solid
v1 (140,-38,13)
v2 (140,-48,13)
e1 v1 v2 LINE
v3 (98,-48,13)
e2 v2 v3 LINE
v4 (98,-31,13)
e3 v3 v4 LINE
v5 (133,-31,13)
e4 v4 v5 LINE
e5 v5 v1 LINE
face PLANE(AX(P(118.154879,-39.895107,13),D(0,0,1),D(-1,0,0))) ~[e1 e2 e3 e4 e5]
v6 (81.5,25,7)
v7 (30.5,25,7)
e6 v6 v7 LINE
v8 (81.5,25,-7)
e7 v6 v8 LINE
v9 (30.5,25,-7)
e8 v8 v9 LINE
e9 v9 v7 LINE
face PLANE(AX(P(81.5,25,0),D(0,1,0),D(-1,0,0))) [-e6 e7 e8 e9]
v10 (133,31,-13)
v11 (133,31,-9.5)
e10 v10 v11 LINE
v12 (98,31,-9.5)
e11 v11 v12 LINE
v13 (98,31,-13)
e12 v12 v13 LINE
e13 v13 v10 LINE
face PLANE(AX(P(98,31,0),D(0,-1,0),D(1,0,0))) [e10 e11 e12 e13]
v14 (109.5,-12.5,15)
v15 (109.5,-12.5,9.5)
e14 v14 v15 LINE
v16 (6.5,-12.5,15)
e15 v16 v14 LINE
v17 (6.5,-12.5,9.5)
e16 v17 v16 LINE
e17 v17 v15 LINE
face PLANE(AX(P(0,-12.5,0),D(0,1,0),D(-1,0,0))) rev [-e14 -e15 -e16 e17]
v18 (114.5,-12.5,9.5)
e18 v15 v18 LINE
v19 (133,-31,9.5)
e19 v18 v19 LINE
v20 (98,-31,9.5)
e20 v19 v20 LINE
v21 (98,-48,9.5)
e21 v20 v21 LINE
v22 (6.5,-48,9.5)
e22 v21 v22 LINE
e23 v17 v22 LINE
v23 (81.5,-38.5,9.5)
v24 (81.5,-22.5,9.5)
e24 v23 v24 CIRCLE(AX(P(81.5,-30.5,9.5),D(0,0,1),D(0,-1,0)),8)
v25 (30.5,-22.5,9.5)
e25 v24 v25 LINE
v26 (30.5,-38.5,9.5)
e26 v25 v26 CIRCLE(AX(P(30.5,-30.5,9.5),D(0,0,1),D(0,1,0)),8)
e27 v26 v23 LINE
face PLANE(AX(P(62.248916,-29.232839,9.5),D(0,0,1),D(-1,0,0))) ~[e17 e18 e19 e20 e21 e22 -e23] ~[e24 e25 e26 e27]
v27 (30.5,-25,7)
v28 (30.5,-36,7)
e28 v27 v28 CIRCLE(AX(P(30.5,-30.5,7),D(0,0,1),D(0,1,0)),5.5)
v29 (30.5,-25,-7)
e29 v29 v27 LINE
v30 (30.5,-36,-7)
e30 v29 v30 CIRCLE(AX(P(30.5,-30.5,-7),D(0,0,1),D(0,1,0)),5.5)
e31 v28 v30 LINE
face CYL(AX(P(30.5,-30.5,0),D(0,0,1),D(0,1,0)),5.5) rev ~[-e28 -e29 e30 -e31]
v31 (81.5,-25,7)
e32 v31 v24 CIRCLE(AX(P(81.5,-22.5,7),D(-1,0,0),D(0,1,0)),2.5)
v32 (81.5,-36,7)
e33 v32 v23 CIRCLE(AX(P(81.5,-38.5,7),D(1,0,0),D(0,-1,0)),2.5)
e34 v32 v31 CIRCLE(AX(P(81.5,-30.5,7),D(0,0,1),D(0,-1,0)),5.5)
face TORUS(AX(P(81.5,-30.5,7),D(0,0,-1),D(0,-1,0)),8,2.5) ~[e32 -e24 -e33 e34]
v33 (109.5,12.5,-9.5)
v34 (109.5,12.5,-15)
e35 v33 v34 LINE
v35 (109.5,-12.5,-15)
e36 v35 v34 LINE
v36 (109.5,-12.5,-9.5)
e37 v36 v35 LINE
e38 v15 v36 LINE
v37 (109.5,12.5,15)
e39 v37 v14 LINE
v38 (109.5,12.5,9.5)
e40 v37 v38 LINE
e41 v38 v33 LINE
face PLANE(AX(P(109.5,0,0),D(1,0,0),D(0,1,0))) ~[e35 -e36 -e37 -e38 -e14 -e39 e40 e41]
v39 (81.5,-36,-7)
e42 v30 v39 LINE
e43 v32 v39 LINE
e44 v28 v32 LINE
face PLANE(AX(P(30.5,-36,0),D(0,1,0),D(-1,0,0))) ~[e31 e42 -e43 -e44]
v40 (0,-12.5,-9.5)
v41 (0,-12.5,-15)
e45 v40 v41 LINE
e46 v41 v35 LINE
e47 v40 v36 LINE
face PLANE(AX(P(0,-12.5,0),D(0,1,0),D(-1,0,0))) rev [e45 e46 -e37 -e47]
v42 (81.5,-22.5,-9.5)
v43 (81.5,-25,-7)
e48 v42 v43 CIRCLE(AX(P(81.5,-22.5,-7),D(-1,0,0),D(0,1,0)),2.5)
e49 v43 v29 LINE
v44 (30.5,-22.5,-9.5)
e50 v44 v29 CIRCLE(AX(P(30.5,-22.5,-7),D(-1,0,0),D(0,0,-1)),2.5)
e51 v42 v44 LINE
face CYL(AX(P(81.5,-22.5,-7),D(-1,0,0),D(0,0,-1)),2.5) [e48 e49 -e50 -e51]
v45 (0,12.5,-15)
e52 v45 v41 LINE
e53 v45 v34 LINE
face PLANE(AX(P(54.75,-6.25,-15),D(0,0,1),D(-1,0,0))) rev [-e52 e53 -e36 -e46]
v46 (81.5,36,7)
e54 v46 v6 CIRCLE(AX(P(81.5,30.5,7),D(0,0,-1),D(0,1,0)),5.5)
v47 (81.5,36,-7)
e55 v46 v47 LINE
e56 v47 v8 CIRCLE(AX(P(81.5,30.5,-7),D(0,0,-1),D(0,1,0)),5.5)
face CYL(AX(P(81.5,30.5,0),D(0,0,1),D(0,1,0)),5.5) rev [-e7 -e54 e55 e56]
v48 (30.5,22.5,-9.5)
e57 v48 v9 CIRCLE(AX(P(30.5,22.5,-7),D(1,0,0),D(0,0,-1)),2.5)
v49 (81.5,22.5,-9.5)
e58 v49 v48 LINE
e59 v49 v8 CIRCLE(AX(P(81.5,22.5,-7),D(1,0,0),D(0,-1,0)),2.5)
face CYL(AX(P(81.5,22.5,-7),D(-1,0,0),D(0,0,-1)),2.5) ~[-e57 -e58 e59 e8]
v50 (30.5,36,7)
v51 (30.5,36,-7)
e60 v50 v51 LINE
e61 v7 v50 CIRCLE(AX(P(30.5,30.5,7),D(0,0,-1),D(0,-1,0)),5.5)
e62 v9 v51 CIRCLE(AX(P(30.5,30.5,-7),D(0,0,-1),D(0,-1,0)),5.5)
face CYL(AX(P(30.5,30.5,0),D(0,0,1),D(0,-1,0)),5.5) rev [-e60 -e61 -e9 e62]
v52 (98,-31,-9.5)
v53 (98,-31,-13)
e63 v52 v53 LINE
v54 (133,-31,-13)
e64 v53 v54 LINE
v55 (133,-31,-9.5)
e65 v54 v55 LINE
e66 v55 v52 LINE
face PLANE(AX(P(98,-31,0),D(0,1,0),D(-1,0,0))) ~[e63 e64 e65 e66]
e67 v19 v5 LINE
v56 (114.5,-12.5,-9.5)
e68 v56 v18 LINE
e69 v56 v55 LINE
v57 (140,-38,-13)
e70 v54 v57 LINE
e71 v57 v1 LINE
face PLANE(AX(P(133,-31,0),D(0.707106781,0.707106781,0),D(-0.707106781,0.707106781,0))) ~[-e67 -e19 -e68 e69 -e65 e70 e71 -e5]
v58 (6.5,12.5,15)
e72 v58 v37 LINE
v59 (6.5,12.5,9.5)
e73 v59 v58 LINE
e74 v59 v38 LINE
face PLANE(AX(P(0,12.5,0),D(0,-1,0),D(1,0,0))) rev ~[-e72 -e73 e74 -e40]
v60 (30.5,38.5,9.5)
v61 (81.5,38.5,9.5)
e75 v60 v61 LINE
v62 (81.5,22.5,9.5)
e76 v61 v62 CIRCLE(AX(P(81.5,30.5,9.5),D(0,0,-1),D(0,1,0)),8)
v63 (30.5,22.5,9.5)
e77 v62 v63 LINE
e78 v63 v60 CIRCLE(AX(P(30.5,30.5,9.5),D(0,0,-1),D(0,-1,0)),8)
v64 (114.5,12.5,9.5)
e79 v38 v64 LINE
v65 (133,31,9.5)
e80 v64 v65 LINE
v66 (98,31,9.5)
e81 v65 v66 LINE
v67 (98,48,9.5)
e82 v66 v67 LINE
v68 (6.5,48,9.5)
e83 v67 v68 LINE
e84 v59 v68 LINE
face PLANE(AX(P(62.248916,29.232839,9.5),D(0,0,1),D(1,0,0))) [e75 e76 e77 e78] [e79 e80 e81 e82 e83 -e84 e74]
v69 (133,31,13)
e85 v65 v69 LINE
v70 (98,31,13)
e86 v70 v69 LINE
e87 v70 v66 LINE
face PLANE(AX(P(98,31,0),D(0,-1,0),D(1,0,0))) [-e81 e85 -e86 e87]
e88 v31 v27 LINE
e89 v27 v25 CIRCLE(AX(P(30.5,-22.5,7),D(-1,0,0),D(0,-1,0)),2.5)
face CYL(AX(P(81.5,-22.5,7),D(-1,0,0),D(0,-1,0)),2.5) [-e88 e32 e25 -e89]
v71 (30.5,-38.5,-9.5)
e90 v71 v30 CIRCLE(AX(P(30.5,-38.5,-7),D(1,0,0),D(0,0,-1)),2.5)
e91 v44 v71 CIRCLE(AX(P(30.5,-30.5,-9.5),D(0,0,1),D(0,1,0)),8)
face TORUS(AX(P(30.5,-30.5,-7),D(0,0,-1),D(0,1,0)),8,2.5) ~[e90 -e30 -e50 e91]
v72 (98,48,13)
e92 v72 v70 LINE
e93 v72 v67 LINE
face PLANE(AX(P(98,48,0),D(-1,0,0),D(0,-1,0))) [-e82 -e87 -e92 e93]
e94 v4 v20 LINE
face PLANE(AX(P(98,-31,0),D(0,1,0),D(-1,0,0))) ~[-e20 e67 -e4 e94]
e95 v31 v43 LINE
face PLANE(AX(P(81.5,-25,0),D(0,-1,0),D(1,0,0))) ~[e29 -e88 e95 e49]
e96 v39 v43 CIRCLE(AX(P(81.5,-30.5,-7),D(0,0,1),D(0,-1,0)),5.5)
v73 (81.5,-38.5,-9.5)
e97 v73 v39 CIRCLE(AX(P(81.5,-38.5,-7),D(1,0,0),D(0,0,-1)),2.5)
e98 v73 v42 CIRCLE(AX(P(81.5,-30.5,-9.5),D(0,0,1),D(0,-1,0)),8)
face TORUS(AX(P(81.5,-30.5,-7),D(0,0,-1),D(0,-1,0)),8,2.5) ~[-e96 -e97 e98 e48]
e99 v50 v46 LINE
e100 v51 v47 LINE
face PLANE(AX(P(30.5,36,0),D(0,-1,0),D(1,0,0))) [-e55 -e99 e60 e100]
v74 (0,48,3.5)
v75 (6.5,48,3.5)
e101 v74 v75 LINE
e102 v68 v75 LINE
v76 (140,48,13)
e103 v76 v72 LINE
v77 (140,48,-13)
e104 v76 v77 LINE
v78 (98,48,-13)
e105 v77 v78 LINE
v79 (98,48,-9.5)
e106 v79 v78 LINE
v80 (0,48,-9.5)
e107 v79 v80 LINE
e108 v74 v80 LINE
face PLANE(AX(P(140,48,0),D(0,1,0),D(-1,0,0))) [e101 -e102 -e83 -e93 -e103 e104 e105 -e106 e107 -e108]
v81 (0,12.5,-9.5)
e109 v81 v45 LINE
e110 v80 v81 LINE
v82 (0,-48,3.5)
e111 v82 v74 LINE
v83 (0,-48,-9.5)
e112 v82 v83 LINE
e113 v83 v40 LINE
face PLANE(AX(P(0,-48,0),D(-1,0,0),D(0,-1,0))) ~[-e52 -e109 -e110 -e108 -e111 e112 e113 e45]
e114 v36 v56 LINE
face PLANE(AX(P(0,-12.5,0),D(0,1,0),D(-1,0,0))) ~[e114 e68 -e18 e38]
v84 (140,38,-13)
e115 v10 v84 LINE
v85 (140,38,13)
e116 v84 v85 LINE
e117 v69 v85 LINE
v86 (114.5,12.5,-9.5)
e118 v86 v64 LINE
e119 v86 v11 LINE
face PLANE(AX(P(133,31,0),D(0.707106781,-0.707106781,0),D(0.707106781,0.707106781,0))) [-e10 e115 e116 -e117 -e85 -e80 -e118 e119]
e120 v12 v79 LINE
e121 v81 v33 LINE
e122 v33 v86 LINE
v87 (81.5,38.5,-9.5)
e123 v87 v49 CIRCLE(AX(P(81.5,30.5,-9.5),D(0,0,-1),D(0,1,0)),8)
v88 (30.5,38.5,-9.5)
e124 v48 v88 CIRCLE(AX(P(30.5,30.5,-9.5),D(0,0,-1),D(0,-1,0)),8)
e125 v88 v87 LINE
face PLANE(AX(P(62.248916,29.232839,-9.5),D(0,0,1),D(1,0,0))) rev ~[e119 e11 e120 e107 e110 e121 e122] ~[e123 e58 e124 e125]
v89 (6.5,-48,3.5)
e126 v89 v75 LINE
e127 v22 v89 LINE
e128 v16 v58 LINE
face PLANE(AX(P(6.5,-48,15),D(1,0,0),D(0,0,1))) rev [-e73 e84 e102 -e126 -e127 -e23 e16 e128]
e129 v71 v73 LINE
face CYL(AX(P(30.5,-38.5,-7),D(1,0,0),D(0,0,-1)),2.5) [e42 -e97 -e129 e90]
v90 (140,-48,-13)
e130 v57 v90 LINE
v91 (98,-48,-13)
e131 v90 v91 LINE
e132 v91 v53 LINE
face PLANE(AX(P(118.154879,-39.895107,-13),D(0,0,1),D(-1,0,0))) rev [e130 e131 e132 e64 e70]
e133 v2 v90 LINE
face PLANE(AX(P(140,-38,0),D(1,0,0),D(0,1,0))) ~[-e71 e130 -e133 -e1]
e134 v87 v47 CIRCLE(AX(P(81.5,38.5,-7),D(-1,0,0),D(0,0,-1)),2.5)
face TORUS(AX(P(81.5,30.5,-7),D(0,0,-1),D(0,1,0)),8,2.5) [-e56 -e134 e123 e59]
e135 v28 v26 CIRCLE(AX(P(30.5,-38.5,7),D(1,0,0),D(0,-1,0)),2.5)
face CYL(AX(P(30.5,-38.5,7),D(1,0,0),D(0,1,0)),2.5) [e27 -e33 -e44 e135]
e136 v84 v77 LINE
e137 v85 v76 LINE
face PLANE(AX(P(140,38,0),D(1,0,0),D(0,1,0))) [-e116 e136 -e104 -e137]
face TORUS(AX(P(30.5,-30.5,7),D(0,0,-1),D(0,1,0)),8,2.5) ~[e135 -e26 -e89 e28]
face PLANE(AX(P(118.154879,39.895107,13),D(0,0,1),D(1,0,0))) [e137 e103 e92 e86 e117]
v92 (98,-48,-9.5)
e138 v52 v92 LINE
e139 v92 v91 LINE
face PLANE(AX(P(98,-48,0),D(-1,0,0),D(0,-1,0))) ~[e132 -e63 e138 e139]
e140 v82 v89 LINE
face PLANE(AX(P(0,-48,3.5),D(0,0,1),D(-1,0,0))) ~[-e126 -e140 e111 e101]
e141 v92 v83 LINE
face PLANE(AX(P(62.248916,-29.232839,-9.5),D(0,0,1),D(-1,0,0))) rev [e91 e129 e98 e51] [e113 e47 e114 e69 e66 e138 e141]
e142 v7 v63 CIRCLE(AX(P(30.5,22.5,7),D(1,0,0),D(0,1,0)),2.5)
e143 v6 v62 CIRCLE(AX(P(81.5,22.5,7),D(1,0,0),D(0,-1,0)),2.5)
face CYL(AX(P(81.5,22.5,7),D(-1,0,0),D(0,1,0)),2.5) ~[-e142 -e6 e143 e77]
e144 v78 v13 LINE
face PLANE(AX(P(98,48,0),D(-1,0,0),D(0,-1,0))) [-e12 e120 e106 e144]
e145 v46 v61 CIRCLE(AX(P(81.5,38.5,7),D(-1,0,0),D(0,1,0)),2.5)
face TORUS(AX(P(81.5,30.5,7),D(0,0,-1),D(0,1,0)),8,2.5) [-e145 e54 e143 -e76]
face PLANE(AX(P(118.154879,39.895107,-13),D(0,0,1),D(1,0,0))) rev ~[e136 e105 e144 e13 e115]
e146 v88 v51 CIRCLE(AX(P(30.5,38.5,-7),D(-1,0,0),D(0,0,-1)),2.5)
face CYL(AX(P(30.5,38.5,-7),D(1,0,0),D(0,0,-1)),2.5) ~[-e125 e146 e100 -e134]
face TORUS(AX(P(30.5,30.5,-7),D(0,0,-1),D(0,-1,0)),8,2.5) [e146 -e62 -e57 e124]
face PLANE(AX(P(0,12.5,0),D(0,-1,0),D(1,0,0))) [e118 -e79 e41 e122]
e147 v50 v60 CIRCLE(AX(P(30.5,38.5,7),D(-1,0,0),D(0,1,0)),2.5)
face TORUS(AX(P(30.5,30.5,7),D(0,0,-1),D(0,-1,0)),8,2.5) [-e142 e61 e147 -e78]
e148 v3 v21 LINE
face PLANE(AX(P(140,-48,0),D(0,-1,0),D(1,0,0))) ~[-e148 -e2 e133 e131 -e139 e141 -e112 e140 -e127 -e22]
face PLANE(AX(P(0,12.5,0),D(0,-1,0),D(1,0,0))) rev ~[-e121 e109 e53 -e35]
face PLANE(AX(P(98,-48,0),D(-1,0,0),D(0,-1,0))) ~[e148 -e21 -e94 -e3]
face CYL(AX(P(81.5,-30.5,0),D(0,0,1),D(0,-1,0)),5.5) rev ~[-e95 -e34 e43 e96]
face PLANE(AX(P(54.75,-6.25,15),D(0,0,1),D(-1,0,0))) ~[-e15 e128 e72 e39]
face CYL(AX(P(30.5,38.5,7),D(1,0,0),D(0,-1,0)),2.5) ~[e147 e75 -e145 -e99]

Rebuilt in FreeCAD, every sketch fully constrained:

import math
import FreeCAD as App
import Part
import Sketcher

V = App.Vector
Q = App.Units.Quantity


def edges_at(feature, points):
    """Names of the edges that pass closest to the given points."""
    edges = feature.Shape.Edges
    near = lambda p: min(range(len(edges)), key=lambda i: edges[i].distToShape(Part.Vertex(*p))[0])
    return sorted({f"Edge{near(p) + 1}" for p in points})


def add_polygon(sketch, points):
    """Adds a closed chain of lines whose ends are joined by coincident constraints."""
    first, n = sketch.GeometryCount, len(points)
    for a, b in zip(points, points[1:] + points[:1]):
        sketch.addGeometry(Part.LineSegment(App.Vector(*a, 0), App.Vector(*b, 0)), False)
    for i in range(n):
        sketch.addConstraint(Sketcher.Constraint("Coincident", first + i, 2, first + (i + 1) % n, 1))

doc = App.newDocument("Part")
body = doc.addObject("PartDesign::Body", "Body")

sketch1 = body.newObject("Sketcher::SketchObject", "Sketch")
sketch1.AttachmentSupport = (doc.getObject("XY_Plane"), [""])
sketch1.MapMode = "FlatFace"
add_polygon(sketch1, [(0, 12), (0, 0), (110, 0), (110, 12)])
sketch1.addConstraint(Sketcher.Constraint("Vertical", 0))
sketch1.addConstraint(Sketcher.Constraint("Horizontal", 1))
sketch1.addConstraint(Sketcher.Constraint("Vertical", 2))
sketch1.addConstraint(Sketcher.Constraint("Horizontal", 3))
sketch1.addConstraint(Sketcher.Constraint("Coincident", 0, 2, -1, 1))
sketch1.addConstraint(Sketcher.Constraint("DistanceX", 1, 1, 1, 2, Q("109.5 mm")))
sketch1.addConstraint(Sketcher.Constraint("DistanceY", 0, 2, 0, 1, Q("12.5 mm")))
pad1 = body.newObject("PartDesign::Pad", "Pad")
pad1.Profile = sketch1
pad1.Length = 30
pad1.Midplane = True

sketch2 = body.newObject("Sketcher::SketchObject", "Sketch001")
sketch2.AttachmentSupport = (doc.getObject("XY_Plane"), [""])
sketch2.MapMode = "FlatFace"
add_polygon(sketch2, [(0, 12), (114, 12), (133, 31), (98, 31), (98, 48), (0, 48)])
sketch2.addGeometry(Part.LineSegment(V(82, 25, 0), V(30, 25, 0)), False)
sketch2.addGeometry(Part.ArcOfCircle(Part.Circle(V(30, 30, 0), V(0, 0, 1), 6), math.radians(90), math.radians(270)), False)
sketch2.addGeometry(Part.LineSegment(V(30, 36, 0), V(82, 36, 0)), False)
sketch2.addGeometry(Part.ArcOfCircle(Part.Circle(V(82, 30, 0), V(0, 0, 1), 6), math.radians(-90), math.radians(90)), False)
sketch2.addConstraint(Sketcher.Constraint("Tangent", 6, 2, 7, 2))
sketch2.addConstraint(Sketcher.Constraint("Tangent", 7, 1, 8, 1))
sketch2.addConstraint(Sketcher.Constraint("Tangent", 8, 2, 9, 2))
sketch2.addConstraint(Sketcher.Constraint("Tangent", 9, 1, 6, 1))
sketch2.addConstraint(Sketcher.Constraint("Horizontal", 0))
sketch2.addConstraint(Sketcher.Constraint("Horizontal", 2))
sketch2.addConstraint(Sketcher.Constraint("Vertical", 3))
sketch2.addConstraint(Sketcher.Constraint("Horizontal", 4))
sketch2.addConstraint(Sketcher.Constraint("Vertical", 5))
sketch2.addConstraint(Sketcher.Constraint("Horizontal", 6))
sketch2.addConstraint(Sketcher.Constraint("Horizontal", 8))
sketch2.addConstraint(Sketcher.Constraint("PointOnObject", 4, 2, -2))
sketch2.addConstraint(Sketcher.Constraint("Radius", 7, Q("5.5 mm")))
sketch2.addConstraint(Sketcher.Constraint("DistanceX", 2, 2, 2, 1, Q("35 mm")))
sketch2.addConstraint(Sketcher.Constraint("DistanceX", 4, 2, 4, 1, Q("98 mm")))
sketch2.addConstraint(Sketcher.Constraint("DistanceX", 6, 2, 6, 1, Q("51 mm")))
sketch2.addConstraint(Sketcher.Constraint("DistanceY", 3, 1, 3, 2, Q("17 mm")))
sketch2.addConstraint(Sketcher.Constraint("Angle", 1, Q("45 deg")))
sketch2.addConstraint(Sketcher.Constraint("DistanceX", 0, 1, 0, 2, Q("114.5 mm")))
sketch2.addConstraint(Sketcher.Constraint("DistanceY", -1, 1, 1, 2, Q("31 mm")))
sketch2.addConstraint(Sketcher.Constraint("DistanceY", -1, 1, 6, 2, Q("25 mm")))
sketch2.addConstraint(Sketcher.Constraint("DistanceX", 9, 3, 0, 2, Q("33 mm")))
pad2 = body.newObject("PartDesign::Pad", "Pad001")
pad2.Profile = sketch2
pad2.Length = 19
pad2.Midplane = True

sketch3 = body.newObject("Sketcher::SketchObject", "Sketch002")
sketch3.AttachmentSupport = (doc.getObject("XY_Plane"), [""])
sketch3.MapMode = "FlatFace"
add_polygon(sketch3, [(98, 31), (133, 31), (140, 38), (140, 48), (98, 48)])
sketch3.addConstraint(Sketcher.Constraint("Horizontal", 0))
sketch3.addConstraint(Sketcher.Constraint("Vertical", 2))
sketch3.addConstraint(Sketcher.Constraint("Horizontal", 3))
sketch3.addConstraint(Sketcher.Constraint("Vertical", 4))
sketch3.addConstraint(Sketcher.Constraint("DistanceX", 0, 1, 0, 2, Q("35 mm")))
sketch3.addConstraint(Sketcher.Constraint("DistanceX", 3, 2, 3, 1, Q("42 mm")))
sketch3.addConstraint(Sketcher.Constraint("DistanceY", 2, 1, 2, 2, Q("10 mm")))
sketch3.addConstraint(Sketcher.Constraint("DistanceY", 4, 2, 4, 1, Q("17 mm")))
sketch3.addConstraint(Sketcher.Constraint("DistanceX", -1, 1, 0, 2, Q("133 mm")))
sketch3.addConstraint(Sketcher.Constraint("DistanceY", -1, 1, 0, 2, Q("31 mm")))
pad3 = body.newObject("PartDesign::Pad", "Pad002")
pad3.Profile = sketch3
pad3.Length = 26
pad3.Midplane = True

sketch4 = body.newObject("Sketcher::SketchObject", "Sketch003")
sketch4.AttachmentSupport = (doc.getObject("XZ_Plane"), [""])
sketch4.MapMode = "FlatFace"
sketch4.AttachmentOffset = App.Placement(V(0, 0, -48), App.Rotation())
add_polygon(sketch4, [(0, 4), (0, 15), (6, 15), (6, 4)])
sketch4.addConstraint(Sketcher.Constraint("Vertical", 0))
sketch4.addConstraint(Sketcher.Constraint("Horizontal", 1))
sketch4.addConstraint(Sketcher.Constraint("Vertical", 2))
sketch4.addConstraint(Sketcher.Constraint("Horizontal", 3))
sketch4.addConstraint(Sketcher.Constraint("PointOnObject", 0, 2, -2))
sketch4.addConstraint(Sketcher.Constraint("DistanceX", 1, 1, 1, 2, Q("6.5 mm")))
sketch4.addConstraint(Sketcher.Constraint("DistanceY", 0, 1, 0, 2, Q("11.5 mm")))
sketch4.addConstraint(Sketcher.Constraint("DistanceY", -1, 1, 0, 2, Q("15 mm")))
pocket1 = body.newObject("PartDesign::Pocket", "Pocket")
pocket1.Profile = sketch4
pocket1.Type = "ThroughAll"
pocket1.Reversed = True
doc.recompute()

fillet = body.newObject("PartDesign::Fillet", "Fillet")
fillet.Base = (pocket1, edges_at(pocket1, [
    (87, 30.5, 9.5),
    (56, 25, 9.5),
    (25, 30.5, 9.5),
    (56, 36, -9.5),
    (56, 36, 9.5),
    (87, 30.5, -9.5),
    (25, 30.5, -9.5),
    (56, 25, -9.5),
]))
fillet.Radius = 2.5
body2 = doc.addObject("PartDesign::Body", "Body001")
doc.recompute()

body2.BaseFeature = body
doc.recompute()

mirroring = doc.addObject("Part::Mirroring", "Mirroring")
mirroring.Source = body
mirroring.Base = V(0, 0, 15)
mirroring.Normal = V(0, -1, 0)
body3 = doc.addObject("PartDesign::Body", "Body002")
body3.BaseFeature = mirroring
boolean = body2.newObject("PartDesign::Boolean", "Boolean")
boolean.Type = "Fuse"
boolean.addObjects([body3])
doc.recompute()
mirroring.Visibility = False

doc.recompute()
